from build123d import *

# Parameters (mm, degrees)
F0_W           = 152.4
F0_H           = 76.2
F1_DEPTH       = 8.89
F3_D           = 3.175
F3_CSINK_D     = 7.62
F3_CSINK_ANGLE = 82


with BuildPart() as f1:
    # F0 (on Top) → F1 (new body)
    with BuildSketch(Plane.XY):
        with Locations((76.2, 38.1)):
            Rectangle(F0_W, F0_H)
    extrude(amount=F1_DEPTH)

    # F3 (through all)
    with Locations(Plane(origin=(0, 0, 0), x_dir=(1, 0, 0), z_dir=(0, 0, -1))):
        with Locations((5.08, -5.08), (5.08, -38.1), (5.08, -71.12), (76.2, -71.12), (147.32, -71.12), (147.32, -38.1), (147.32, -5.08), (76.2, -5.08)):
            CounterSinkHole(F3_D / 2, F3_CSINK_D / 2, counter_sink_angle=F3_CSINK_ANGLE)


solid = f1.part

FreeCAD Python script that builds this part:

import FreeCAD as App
import Part
import Sketcher
Q = App.Units.Quantity

doc = App.newDocument("Part")
body = doc.addObject("PartDesign::Body", "Body")

# Sketch on XY plane
sketch1 = body.newObject("Sketcher::SketchObject", "Sketch")
sketch1.AttachmentSupport = (doc.getObject("XY_Plane"), [""])
sketch1.MapMode = "FlatFace"
sketch1.addGeometry([
    Part.LineSegment(App.Vector(0, 76, 0), App.Vector(0, 0, 0)),
    Part.LineSegment(App.Vector(0, 0, 0), App.Vector(152, 0, 0)),
    Part.LineSegment(App.Vector(152, 0, 0), App.Vector(152, 76, 0)),
    Part.LineSegment(App.Vector(152, 76, 0), App.Vector(0, 76, 0)),
], False)
sketch1.addConstraint([
    Sketcher.Constraint("Coincident", 0, 2, 1, 1),
    Sketcher.Constraint("Coincident", 1, 2, 2, 1),
    Sketcher.Constraint("Coincident", 2, 2, 3, 1),
    Sketcher.Constraint("Coincident", 3, 2, 0, 1),
    Sketcher.Constraint("Vertical", 0),
    Sketcher.Constraint("Horizontal", 1),
    Sketcher.Constraint("Vertical", 2),
    Sketcher.Constraint("Horizontal", 3),
    Sketcher.Constraint("Coincident", 0, 2, -1, 1),
    Sketcher.Constraint("DistanceX", 1, 1, 1, 2, Q("6 in")),
    Sketcher.Constraint("DistanceY", 0, 2, 0, 1, Q("3 in")),
])
pad1 = body.newObject("PartDesign::Pad", "Pad")
pad1.Profile = sketch1
pad1.Length = Q("0.35 in")

# Sketch on XY plane
sketch2 = body.newObject("Sketcher::SketchObject", "Sketch001")
sketch2.AttachmentSupport = (doc.getObject("XY_Plane"), [""])
sketch2.MapMode = "FlatFace"
sketch2.addGeometry([
    Part.Circle(App.Vector(5.1, 5.1, 0), App.Vector(0, 0, 1), 1.6),  # 0
    Part.Circle(App.Vector(5.1, 38.1, 0), App.Vector(0, 0, 1), 1.6),  # 1
    Part.Circle(App.Vector(5.1, 71.1, 0), App.Vector(0, 0, 1), 1.6),  # 2
    Part.Circle(App.Vector(76.2, 71.1, 0), App.Vector(0, 0, 1), 1.6),  # 3
    Part.Circle(App.Vector(147.3, 71.1, 0), App.Vector(0, 0, 1), 1.6),  # 4
    Part.Circle(App.Vector(147.3, 38.1, 0), App.Vector(0, 0, 1), 1.6),  # 5
    Part.Circle(App.Vector(147.3, 5.1, 0), App.Vector(0, 0, 1), 1.6),  # 6
    Part.Circle(App.Vector(76.2, 5.1, 0), App.Vector(0, 0, 1), 1.6),  # 7
], False)
sketch2.addConstraint([
    Sketcher.Constraint("Equal", 0, 1),
    Sketcher.Constraint("Equal", 1, 2),
    Sketcher.Constraint("Equal", 2, 3),
    Sketcher.Constraint("Equal", 3, 4),
    Sketcher.Constraint("Equal", 4, 5),
    Sketcher.Constraint("Equal", 5, 6),
    Sketcher.Constraint("Equal", 6, 7),
    Sketcher.Constraint("Horizontal", 2, 3, 3, 3),
    Sketcher.Constraint("Horizontal", 3, 3, 4, 3),
    Sketcher.Constraint("Horizontal", 1, 3, 5, 3),
    Sketcher.Constraint("Horizontal", 0, 3, 6, 3),
    Sketcher.Constraint("Horizontal", 6, 3, 7, 3),
    Sketcher.Constraint("Vertical", 0, 3, 1, 3),
    Sketcher.Constraint("Vertical", 1, 3, 2, 3),
    Sketcher.Constraint("Vertical", 4, 3, 5, 3),
    Sketcher.Constraint("Vertical", 5, 3, 6, 3),
    Sketcher.Constraint("Vertical", 3, 3, 7, 3),
    Sketcher.Constraint("Diameter", 0, Q("0.125 in")),
    Sketcher.Constraint("DistanceX", -1, 1, 3, 3, Q("3 in")),
    Sketcher.Constraint("DistanceX", -1, 1, 0, 3, Q("0.2 in")),
    Sketcher.Constraint("DistanceY", -1, 1, 0, 3, Q("0.2 in")),
    Sketcher.Constraint("DistanceY", -1, 1, 1, 3, Q("1.5 in")),
    Sketcher.Constraint("DistanceY", -1, 1, 2, 3, Q("2.8 in")),
    Sketcher.Constraint("DistanceX", -1, 1, 4, 3, Q("5.8 in")),
])
doc.recompute()
hole = body.newObject("PartDesign::Hole", "Hole")
hole.Profile = sketch2
hole.ThreadType = "None"
hole.Diameter = Q("0.125 in")
hole.DepthType = "ThroughAll"
hole.HoleCutType = "Countersink"
hole.HoleCutDiameter = Q("0.3 in")
hole.HoleCutCountersinkAngle = 82
hole.Reversed = True

doc.recompute()
